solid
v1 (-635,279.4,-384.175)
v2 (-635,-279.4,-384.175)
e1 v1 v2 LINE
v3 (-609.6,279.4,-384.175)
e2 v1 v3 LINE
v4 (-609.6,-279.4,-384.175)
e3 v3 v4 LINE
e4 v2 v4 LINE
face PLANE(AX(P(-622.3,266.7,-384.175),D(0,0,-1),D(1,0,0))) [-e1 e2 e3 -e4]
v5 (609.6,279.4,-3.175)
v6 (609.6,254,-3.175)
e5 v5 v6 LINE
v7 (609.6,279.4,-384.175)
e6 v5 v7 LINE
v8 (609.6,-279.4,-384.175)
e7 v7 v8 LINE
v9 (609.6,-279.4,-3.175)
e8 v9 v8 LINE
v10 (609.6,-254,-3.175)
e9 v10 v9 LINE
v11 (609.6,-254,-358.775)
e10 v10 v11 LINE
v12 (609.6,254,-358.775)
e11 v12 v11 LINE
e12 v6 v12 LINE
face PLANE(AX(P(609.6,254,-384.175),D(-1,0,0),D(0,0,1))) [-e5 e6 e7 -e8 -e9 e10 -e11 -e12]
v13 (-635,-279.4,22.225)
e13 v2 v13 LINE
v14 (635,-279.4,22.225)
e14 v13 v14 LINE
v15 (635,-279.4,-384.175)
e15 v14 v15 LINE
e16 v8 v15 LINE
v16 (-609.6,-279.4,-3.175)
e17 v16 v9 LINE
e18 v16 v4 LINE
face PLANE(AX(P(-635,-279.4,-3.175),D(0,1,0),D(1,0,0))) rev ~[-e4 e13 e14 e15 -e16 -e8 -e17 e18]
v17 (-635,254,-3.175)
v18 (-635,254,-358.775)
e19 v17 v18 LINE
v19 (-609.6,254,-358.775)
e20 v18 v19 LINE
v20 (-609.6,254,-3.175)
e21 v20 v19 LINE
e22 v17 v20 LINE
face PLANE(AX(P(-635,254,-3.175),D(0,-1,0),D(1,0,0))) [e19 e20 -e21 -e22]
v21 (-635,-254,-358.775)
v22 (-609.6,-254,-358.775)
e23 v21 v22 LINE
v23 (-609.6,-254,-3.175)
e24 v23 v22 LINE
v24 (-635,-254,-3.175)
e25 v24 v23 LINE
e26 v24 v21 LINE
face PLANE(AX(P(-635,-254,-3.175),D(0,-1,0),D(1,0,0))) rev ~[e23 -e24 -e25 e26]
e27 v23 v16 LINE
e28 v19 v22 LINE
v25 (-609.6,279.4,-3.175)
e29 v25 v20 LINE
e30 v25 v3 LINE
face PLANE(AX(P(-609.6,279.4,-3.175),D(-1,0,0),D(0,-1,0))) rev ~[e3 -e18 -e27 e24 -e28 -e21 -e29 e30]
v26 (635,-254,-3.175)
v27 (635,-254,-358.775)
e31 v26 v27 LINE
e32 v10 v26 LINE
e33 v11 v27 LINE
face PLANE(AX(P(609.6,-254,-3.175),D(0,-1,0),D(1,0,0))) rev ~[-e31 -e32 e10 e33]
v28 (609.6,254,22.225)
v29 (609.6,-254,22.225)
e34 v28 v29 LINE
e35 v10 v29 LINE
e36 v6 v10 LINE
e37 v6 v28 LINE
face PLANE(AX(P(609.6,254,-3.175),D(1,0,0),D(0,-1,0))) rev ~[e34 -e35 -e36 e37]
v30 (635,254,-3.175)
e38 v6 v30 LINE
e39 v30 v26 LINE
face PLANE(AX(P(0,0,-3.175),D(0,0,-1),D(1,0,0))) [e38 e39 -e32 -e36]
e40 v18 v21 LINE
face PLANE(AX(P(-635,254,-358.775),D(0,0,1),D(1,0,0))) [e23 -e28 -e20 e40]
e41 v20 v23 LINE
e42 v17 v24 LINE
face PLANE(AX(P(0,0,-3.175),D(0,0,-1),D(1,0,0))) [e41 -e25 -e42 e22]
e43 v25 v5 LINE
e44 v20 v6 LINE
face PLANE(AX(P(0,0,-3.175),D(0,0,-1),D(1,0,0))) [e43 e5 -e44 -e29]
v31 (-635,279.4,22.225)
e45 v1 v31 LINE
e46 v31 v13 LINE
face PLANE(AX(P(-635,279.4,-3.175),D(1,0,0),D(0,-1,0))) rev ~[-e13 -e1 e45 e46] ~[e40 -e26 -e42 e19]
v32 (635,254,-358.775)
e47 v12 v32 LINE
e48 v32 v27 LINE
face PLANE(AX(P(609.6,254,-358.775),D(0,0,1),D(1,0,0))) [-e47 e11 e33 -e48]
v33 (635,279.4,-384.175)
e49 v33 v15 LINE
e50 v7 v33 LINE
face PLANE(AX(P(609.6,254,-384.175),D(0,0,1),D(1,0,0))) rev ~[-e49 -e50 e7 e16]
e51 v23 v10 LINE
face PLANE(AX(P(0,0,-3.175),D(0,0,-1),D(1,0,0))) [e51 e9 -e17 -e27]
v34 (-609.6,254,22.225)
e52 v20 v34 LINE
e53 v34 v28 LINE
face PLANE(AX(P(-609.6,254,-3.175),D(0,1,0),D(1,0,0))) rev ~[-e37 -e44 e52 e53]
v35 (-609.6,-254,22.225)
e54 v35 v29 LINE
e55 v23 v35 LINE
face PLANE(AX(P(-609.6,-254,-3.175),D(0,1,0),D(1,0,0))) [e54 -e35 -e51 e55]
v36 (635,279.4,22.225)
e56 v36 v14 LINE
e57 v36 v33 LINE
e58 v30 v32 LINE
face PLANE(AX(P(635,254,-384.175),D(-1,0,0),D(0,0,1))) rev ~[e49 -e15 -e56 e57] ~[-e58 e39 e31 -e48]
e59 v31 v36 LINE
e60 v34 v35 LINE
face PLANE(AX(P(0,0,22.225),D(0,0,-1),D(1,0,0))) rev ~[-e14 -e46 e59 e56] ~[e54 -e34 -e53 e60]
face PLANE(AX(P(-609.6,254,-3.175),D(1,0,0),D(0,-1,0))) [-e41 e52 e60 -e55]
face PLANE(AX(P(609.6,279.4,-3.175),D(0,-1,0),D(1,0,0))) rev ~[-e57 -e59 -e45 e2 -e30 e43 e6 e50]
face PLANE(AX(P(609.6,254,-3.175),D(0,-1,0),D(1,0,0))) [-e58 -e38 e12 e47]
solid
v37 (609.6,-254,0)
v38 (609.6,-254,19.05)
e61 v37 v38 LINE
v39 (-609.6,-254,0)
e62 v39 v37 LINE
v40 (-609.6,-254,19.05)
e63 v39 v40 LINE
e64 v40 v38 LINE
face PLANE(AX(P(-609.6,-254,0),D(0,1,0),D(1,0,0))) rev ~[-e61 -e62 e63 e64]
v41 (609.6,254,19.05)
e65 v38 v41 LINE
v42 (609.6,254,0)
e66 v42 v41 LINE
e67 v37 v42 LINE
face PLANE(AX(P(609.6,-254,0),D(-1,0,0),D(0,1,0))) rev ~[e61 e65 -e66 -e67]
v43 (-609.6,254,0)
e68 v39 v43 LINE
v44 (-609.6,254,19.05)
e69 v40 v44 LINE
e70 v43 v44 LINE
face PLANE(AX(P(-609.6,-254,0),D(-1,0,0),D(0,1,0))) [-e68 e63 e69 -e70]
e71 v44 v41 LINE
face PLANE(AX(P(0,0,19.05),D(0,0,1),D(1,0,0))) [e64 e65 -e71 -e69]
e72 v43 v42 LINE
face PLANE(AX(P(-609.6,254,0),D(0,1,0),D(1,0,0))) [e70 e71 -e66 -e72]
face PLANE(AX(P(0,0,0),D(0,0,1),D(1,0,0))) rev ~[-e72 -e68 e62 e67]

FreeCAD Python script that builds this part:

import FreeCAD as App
import Part
import Sketcher
Q = App.Units.Quantity

doc = App.newDocument("Part")
body = doc.addObject("PartDesign::Body", "Body")

# Sketch on XY plane
sketch1 = body.newObject("Sketcher::SketchObject", "Sketch")
sketch1.AttachmentSupport = (doc.getObject("XY_Plane"), [""])
sketch1.MapMode = "FlatFace"
sketch1.addGeometry(Part.LineSegment(App.Vector(-609.6, 254, 0), App.Vector(-609.6, -254, 0)), False)
sketch1.addGeometry(Part.LineSegment(App.Vector(-609.6, -254, 0), App.Vector(609.6, -254, 0)), False)
sketch1.addGeometry(Part.LineSegment(App.Vector(609.6, -254, 0), App.Vector(609.6, 254, 0)), False)
sketch1.addGeometry(Part.LineSegment(App.Vector(609.6, 254, 0), App.Vector(-609.6, 254, 0)), False)
sketch1.addConstraint(Sketcher.Constraint("Coincident", 0, 2, 1, 1))
sketch1.addConstraint(Sketcher.Constraint("Coincident", 1, 2, 2, 1))
sketch1.addConstraint(Sketcher.Constraint("Coincident", 2, 2, 3, 1))
sketch1.addConstraint(Sketcher.Constraint("Coincident", 3, 2, 0, 1))
sketch1.addConstraint(Sketcher.Constraint("Vertical", 0))
sketch1.addConstraint(Sketcher.Constraint("Horizontal", 1))
sketch1.addConstraint(Sketcher.Constraint("Vertical", 2))
sketch1.addConstraint(Sketcher.Constraint("Horizontal", 3))
sketch1.addConstraint(Sketcher.Constraint("Symmetric", 0, 2, 2, 2, -1, 1))
sketch1.addConstraint(Sketcher.Constraint("DistanceX", 1, 1, 1, 2, Q("48 in")))
sketch1.addConstraint(Sketcher.Constraint("DistanceY", 0, 2, 0, 1, Q("20 in")))
pad1 = body.newObject("PartDesign::Pad", "Pad")
pad1.Profile = sketch1
pad1.Length = Q("0.75 in")
body2 = doc.addObject("PartDesign::Body", "Body001")

# Sketch on XY plane
sketch2 = body2.newObject("Sketcher::SketchObject", "Sketch001")
sketch2.AttachmentSupport = (doc.getObject("XY_Plane001"), [""])
sketch2.MapMode = "FlatFace"
sketch2.AttachmentOffset = App.Placement(App.Vector(0, 0, -0.125 * 25.4), App.Rotation())
sketch2.addGeometry(Part.LineSegment(App.Vector(-635, -279.4, 0), App.Vector(-635, 279.4, 0)), False)
sketch2.addGeometry(Part.LineSegment(App.Vector(-635, 279.4, 0), App.Vector(635, 279.4, 0)), False)
sketch2.addGeometry(Part.LineSegment(App.Vector(635, 279.4, 0), App.Vector(635, -279.4, 0)), False)
sketch2.addGeometry(Part.LineSegment(App.Vector(635, -279.4, 0), App.Vector(-635, -279.4, 0)), False)
sketch2.addGeometry(Part.LineSegment(App.Vector(609.6, 254, 0), App.Vector(-609.6, 254, 0)), False)
sketch2.addGeometry(Part.LineSegment(App.Vector(-609.6, 254, 0), App.Vector(-609.6, -254, 0)), False)
sketch2.addGeometry(Part.LineSegment(App.Vector(-609.6, -254, 0), App.Vector(609.6, -254, 0)), False)
sketch2.addGeometry(Part.LineSegment(App.Vector(609.6, -254, 0), App.Vector(609.6, 254, 0)), False)
sketch2.addConstraint(Sketcher.Constraint("Coincident", 0, 2, 1, 1))
sketch2.addConstraint(Sketcher.Constraint("Coincident", 1, 2, 2, 1))
sketch2.addConstraint(Sketcher.Constraint("Coincident", 2, 2, 3, 1))
sketch2.addConstraint(Sketcher.Constraint("Coincident", 3, 2, 0, 1))
sketch2.addConstraint(Sketcher.Constraint("Coincident", 4, 2, 5, 1))
sketch2.addConstraint(Sketcher.Constraint("Coincident", 5, 2, 6, 1))
sketch2.addConstraint(Sketcher.Constraint("Coincident", 6, 2, 7, 1))
sketch2.addConstraint(Sketcher.Constraint("Coincident", 7, 2, 4, 1))
sketch2.addConstraint(Sketcher.Constraint("Vertical", 0))
sketch2.addConstraint(Sketcher.Constraint("Horizontal", 1))
sketch2.addConstraint(Sketcher.Constraint("Vertical", 2))
sketch2.addConstraint(Sketcher.Constraint("Horizontal", 3))
sketch2.addConstraint(Sketcher.Constraint("Horizontal", 4))
sketch2.addConstraint(Sketcher.Constraint("Vertical", 5))
sketch2.addConstraint(Sketcher.Constraint("Horizontal", 6))
sketch2.addConstraint(Sketcher.Constraint("Vertical", 7))
sketch2.addConstraint(Sketcher.Constraint("Symmetric", 0, 2, 2, 2, -1, 1))
sketch2.addConstraint(Sketcher.Constraint("Symmetric", 4, 2, 6, 2, -1, 1))
sketch2.addConstraint(Sketcher.Constraint("DistanceX", 1, 1, 1, 2, Q("50 in")))
sketch2.addConstraint(Sketcher.Constraint("DistanceX", 4, 2, 4, 1, Q("48 in")))
sketch2.addConstraint(Sketcher.Constraint("DistanceY", 0, 1, 0, 2, Q("22 in")))
sketch2.addConstraint(Sketcher.Constraint("DistanceY", 5, 2, 5, 1, Q("20 in")))
pad2 = body2.newObject("PartDesign::Pad", "Pad001")
pad2.Profile = sketch2
pad2.Length = Q("1 in")

# Sketch on XY plane
sketch3 = body2.newObject("Sketcher::SketchObject", "Sketch002")
sketch3.AttachmentSupport = (doc.getObject("XY_Plane001"), [""])
sketch3.MapMode = "FlatFace"
sketch3.AttachmentOffset = App.Placement(App.Vector(0, 0, -0.125 * 25.4), App.Rotation())
sketch3.addGeometry(Part.LineSegment(App.Vector(609.6, 254, 0), App.Vector(609.6, 279.4, 0)), False)
sketch3.addGeometry(Part.LineSegment(App.Vector(609.6, 279.4, 0), App.Vector(635, 279.4, 0)), False)
sketch3.addGeometry(Part.LineSegment(App.Vector(635, 279.4, 0), App.Vector(635, 254, 0)), False)
sketch3.addGeometry(Part.LineSegment(App.Vector(635, 254, 0), App.Vector(609.6, 254, 0)), False)
sketch3.addGeometry(Part.LineSegment(App.Vector(609.6, -279.4, 0), App.Vector(609.6, -254, 0)), False)
sketch3.addGeometry(Part.LineSegment(App.Vector(609.6, -254, 0), App.Vector(635, -254, 0)), False)
sketch3.addGeometry(Part.LineSegment(App.Vector(635, -254, 0), App.Vector(635, -279.4, 0)), False)
sketch3.addGeometry(Part.LineSegment(App.Vector(635, -279.4, 0), App.Vector(609.6, -279.4, 0)), False)
sketch3.addGeometry(Part.LineSegment(App.Vector(-635, -279.4, 0), App.Vector(-635, -254, 0)), False)
sketch3.addGeometry(Part.LineSegment(App.Vector(-635, -254, 0), App.Vector(-609.6, -254, 0)), False)
sketch3.addGeometry(Part.LineSegment(App.Vector(-609.6, -254, 0), App.Vector(-609.6, -279.4, 0)), False)
sketch3.addGeometry(Part.LineSegment(App.Vector(-609.6, -279.4, 0), App.Vector(-635, -279.4, 0)), False)
sketch3.addGeometry(Part.LineSegment(App.Vector(-635, 254, 0), App.Vector(-635, 279.4, 0)), False)
sketch3.addGeometry(Part.LineSegment(App.Vector(-635, 279.4, 0), App.Vector(-609.6, 279.4, 0)), False)
sketch3.addGeometry(Part.LineSegment(App.Vector(-609.6, 279.4, 0), App.Vector(-609.6, 254, 0)), False)
sketch3.addGeometry(Part.LineSegment(App.Vector(-609.6, 254, 0), App.Vector(-635, 254, 0)), False)
sketch3.addConstraint(Sketcher.Constraint("Coincident", 0, 2, 1, 1))
sketch3.addConstraint(Sketcher.Constraint("Coincident", 1, 2, 2, 1))
sketch3.addConstraint(Sketcher.Constraint("Coincident", 2, 2, 3, 1))
sketch3.addConstraint(Sketcher.Constraint("Coincident", 3, 2, 0, 1))
sketch3.addConstraint(Sketcher.Constraint("Coincident", 4, 2, 5, 1))
sketch3.addConstraint(Sketcher.Constraint("Coincident", 5, 2, 6, 1))
sketch3.addConstraint(Sketcher.Constraint("Coincident", 6, 2, 7, 1))
sketch3.addConstraint(Sketcher.Constraint("Coincident", 7, 2, 4, 1))
sketch3.addConstraint(Sketcher.Constraint("Coincident", 8, 2, 9, 1))
sketch3.addConstraint(Sketcher.Constraint("Coincident", 9, 2, 10, 1))
sketch3.addConstraint(Sketcher.Constraint("Coincident", 10, 2, 11, 1))
sketch3.addConstraint(Sketcher.Constraint("Coincident", 11, 2, 8, 1))
sketch3.addConstraint(Sketcher.Constraint("Coincident", 12, 2, 13, 1))
sketch3.addConstraint(Sketcher.Constraint("Coincident", 13, 2, 14, 1))
sketch3.addConstraint(Sketcher.Constraint("Coincident", 14, 2, 15, 1))
sketch3.addConstraint(Sketcher.Constraint("Coincident", 15, 2, 12, 1))
sketch3.addConstraint(Sketcher.Constraint("Vertical", 0))
sketch3.addConstraint(Sketcher.Constraint("Horizontal", 1))
sketch3.addConstraint(Sketcher.Constraint("Vertical", 2))
sketch3.addConstraint(Sketcher.Constraint("Horizontal", 3))
sketch3.addConstraint(Sketcher.Constraint("Vertical", 4))
sketch3.addConstraint(Sketcher.Constraint("Horizontal", 5))
sketch3.addConstraint(Sketcher.Constraint("Vertical", 6))
sketch3.addConstraint(Sketcher.Constraint("Horizontal", 7))
sketch3.addConstraint(Sketcher.Constraint("Vertical", 8))
sketch3.addConstraint(Sketcher.Constraint("Horizontal", 9))
sketch3.addConstraint(Sketcher.Constraint("Vertical", 10))
sketch3.addConstraint(Sketcher.Constraint("Horizontal", 11))
sketch3.addConstraint(Sketcher.Constraint("Vertical", 12))
sketch3.addConstraint(Sketcher.Constraint("Horizontal", 13))
sketch3.addConstraint(Sketcher.Constraint("Vertical", 14))
sketch3.addConstraint(Sketcher.Constraint("Horizontal", 15))
sketch3.addConstraint(Sketcher.Constraint("Symmetric", 2, 2, 8, 2, -1, 1))
sketch3.addConstraint(Sketcher.Constraint("Symmetric", 0, 2, 10, 2, -1, 1))
sketch3.addConstraint(Sketcher.Constraint("Symmetric", 6, 2, 12, 2, -1, 1))
sketch3.addConstraint(Sketcher.Constraint("Symmetric", 4, 2, 14, 2, -1, 1))
sketch3.addConstraint(Sketcher.Constraint("Symmetric", 5, 2, 8, 2, -2))
sketch3.addConstraint(Sketcher.Constraint("Symmetric", 7, 2, 10, 2, -2))
sketch3.addConstraint(Sketcher.Constraint("Equal", 15, 0))
sketch3.addConstraint(Sketcher.Constraint("DistanceX", 1, 1, 1, 2, Q("1 in")))
sketch3.addConstraint(Sketcher.Constraint("DistanceX", -1, 1, 0, 2, Q("24 in")))
sketch3.addConstraint(Sketcher.Constraint("DistanceY", -1, 1, 0, 2, Q("11 in")))
pad3 = body2.newObject("PartDesign::Pad", "Pad002")
pad3.Profile = sketch3
pad3.Length = Q("15 in")
pad3.Reversed = True

# Sketch on XZ plane
sketch4 = body2.newObject("Sketcher::SketchObject", "Sketch003")
sketch4.AttachmentSupport = (doc.getObject("XZ_Plane001"), [""])
sketch4.MapMode = "FlatFace"
sketch4.AttachmentOffset = App.Placement(App.Vector(0, 0, -10 * 25.4), App.Rotation())
sketch4.addGeometry(Part.LineSegment(App.Vector(609.6, -358.775, 0), App.Vector(609.6, -384.175, 0)), False)
sketch4.addGeometry(Part.LineSegment(App.Vector(609.6, -384.175, 0), App.Vector(635, -384.175, 0)), False)
sketch4.addGeometry(Part.LineSegment(App.Vector(635, -384.175, 0), App.Vector(635, -358.775, 0)), False)
sketch4.addGeometry(Part.LineSegment(App.Vector(635, -358.775, 0), App.Vector(609.6, -358.775, 0)), False)
sketch4.addGeometry(Part.LineSegment(App.Vector(-635, -358.775, 0), App.Vector(-635, -384.175, 0)), False)
sketch4.addGeometry(Part.LineSegment(App.Vector(-635, -384.175, 0), App.Vector(-609.6, -384.175, 0)), False)
sketch4.addGeometry(Part.LineSegment(App.Vector(-609.6, -384.175, 0), App.Vector(-609.6, -358.775, 0)), False)
sketch4.addGeometry(Part.LineSegment(App.Vector(-609.6, -358.775, 0), App.Vector(-635, -358.775, 0)), False)
sketch4.addConstraint(Sketcher.Constraint("Coincident", 0, 2, 1, 1))
sketch4.addConstraint(Sketcher.Constraint("Coincident", 1, 2, 2, 1))
sketch4.addConstraint(Sketcher.Constraint("Coincident", 2, 2, 3, 1))
sketch4.addConstraint(Sketcher.Constraint("Coincident", 3, 2, 0, 1))
sketch4.addConstraint(Sketcher.Constraint("Coincident", 4, 2, 5, 1))
sketch4.addConstraint(Sketcher.Constraint("Coincident", 5, 2, 6, 1))
sketch4.addConstraint(Sketcher.Constraint("Coincident", 6, 2, 7, 1))
sketch4.addConstraint(Sketcher.Constraint("Coincident", 7, 2, 4, 1))
sketch4.addConstraint(Sketcher.Constraint("Vertical", 0))
sketch4.addConstraint(Sketcher.Constraint("Horizontal", 1))
sketch4.addConstraint(Sketcher.Constraint("Vertical", 2))
sketch4.addConstraint(Sketcher.Constraint("Horizontal", 3))
sketch4.addConstraint(Sketcher.Constraint("Vertical", 4))
sketch4.addConstraint(Sketcher.Constraint("Horizontal", 5))
sketch4.addConstraint(Sketcher.Constraint("Vertical", 6))
sketch4.addConstraint(Sketcher.Constraint("Horizontal", 7))
sketch4.addConstraint(Sketcher.Constraint("Symmetric", 1, 2, 4, 2, -2))
sketch4.addConstraint(Sketcher.Constraint("Symmetric", 3, 2, 6, 2, -2))
sketch4.addConstraint(Sketcher.Constraint("Equal", 7, 0))
sketch4.addConstraint(Sketcher.Constraint("DistanceX", 1, 1, 1, 2, Q("1 in")))
sketch4.addConstraint(Sketcher.Constraint("DistanceX", -1, 1, 0, 2, Q("24 in")))
sketch4.addConstraint(Sketcher.Constraint("DistanceY", 0, 2, -1, 1, Q("15.125 in")))
pad4 = body2.newObject("PartDesign::Pad", "Pad003")
pad4.Profile = sketch4
pad4.Length = Q("20 in")

doc.recompute()
